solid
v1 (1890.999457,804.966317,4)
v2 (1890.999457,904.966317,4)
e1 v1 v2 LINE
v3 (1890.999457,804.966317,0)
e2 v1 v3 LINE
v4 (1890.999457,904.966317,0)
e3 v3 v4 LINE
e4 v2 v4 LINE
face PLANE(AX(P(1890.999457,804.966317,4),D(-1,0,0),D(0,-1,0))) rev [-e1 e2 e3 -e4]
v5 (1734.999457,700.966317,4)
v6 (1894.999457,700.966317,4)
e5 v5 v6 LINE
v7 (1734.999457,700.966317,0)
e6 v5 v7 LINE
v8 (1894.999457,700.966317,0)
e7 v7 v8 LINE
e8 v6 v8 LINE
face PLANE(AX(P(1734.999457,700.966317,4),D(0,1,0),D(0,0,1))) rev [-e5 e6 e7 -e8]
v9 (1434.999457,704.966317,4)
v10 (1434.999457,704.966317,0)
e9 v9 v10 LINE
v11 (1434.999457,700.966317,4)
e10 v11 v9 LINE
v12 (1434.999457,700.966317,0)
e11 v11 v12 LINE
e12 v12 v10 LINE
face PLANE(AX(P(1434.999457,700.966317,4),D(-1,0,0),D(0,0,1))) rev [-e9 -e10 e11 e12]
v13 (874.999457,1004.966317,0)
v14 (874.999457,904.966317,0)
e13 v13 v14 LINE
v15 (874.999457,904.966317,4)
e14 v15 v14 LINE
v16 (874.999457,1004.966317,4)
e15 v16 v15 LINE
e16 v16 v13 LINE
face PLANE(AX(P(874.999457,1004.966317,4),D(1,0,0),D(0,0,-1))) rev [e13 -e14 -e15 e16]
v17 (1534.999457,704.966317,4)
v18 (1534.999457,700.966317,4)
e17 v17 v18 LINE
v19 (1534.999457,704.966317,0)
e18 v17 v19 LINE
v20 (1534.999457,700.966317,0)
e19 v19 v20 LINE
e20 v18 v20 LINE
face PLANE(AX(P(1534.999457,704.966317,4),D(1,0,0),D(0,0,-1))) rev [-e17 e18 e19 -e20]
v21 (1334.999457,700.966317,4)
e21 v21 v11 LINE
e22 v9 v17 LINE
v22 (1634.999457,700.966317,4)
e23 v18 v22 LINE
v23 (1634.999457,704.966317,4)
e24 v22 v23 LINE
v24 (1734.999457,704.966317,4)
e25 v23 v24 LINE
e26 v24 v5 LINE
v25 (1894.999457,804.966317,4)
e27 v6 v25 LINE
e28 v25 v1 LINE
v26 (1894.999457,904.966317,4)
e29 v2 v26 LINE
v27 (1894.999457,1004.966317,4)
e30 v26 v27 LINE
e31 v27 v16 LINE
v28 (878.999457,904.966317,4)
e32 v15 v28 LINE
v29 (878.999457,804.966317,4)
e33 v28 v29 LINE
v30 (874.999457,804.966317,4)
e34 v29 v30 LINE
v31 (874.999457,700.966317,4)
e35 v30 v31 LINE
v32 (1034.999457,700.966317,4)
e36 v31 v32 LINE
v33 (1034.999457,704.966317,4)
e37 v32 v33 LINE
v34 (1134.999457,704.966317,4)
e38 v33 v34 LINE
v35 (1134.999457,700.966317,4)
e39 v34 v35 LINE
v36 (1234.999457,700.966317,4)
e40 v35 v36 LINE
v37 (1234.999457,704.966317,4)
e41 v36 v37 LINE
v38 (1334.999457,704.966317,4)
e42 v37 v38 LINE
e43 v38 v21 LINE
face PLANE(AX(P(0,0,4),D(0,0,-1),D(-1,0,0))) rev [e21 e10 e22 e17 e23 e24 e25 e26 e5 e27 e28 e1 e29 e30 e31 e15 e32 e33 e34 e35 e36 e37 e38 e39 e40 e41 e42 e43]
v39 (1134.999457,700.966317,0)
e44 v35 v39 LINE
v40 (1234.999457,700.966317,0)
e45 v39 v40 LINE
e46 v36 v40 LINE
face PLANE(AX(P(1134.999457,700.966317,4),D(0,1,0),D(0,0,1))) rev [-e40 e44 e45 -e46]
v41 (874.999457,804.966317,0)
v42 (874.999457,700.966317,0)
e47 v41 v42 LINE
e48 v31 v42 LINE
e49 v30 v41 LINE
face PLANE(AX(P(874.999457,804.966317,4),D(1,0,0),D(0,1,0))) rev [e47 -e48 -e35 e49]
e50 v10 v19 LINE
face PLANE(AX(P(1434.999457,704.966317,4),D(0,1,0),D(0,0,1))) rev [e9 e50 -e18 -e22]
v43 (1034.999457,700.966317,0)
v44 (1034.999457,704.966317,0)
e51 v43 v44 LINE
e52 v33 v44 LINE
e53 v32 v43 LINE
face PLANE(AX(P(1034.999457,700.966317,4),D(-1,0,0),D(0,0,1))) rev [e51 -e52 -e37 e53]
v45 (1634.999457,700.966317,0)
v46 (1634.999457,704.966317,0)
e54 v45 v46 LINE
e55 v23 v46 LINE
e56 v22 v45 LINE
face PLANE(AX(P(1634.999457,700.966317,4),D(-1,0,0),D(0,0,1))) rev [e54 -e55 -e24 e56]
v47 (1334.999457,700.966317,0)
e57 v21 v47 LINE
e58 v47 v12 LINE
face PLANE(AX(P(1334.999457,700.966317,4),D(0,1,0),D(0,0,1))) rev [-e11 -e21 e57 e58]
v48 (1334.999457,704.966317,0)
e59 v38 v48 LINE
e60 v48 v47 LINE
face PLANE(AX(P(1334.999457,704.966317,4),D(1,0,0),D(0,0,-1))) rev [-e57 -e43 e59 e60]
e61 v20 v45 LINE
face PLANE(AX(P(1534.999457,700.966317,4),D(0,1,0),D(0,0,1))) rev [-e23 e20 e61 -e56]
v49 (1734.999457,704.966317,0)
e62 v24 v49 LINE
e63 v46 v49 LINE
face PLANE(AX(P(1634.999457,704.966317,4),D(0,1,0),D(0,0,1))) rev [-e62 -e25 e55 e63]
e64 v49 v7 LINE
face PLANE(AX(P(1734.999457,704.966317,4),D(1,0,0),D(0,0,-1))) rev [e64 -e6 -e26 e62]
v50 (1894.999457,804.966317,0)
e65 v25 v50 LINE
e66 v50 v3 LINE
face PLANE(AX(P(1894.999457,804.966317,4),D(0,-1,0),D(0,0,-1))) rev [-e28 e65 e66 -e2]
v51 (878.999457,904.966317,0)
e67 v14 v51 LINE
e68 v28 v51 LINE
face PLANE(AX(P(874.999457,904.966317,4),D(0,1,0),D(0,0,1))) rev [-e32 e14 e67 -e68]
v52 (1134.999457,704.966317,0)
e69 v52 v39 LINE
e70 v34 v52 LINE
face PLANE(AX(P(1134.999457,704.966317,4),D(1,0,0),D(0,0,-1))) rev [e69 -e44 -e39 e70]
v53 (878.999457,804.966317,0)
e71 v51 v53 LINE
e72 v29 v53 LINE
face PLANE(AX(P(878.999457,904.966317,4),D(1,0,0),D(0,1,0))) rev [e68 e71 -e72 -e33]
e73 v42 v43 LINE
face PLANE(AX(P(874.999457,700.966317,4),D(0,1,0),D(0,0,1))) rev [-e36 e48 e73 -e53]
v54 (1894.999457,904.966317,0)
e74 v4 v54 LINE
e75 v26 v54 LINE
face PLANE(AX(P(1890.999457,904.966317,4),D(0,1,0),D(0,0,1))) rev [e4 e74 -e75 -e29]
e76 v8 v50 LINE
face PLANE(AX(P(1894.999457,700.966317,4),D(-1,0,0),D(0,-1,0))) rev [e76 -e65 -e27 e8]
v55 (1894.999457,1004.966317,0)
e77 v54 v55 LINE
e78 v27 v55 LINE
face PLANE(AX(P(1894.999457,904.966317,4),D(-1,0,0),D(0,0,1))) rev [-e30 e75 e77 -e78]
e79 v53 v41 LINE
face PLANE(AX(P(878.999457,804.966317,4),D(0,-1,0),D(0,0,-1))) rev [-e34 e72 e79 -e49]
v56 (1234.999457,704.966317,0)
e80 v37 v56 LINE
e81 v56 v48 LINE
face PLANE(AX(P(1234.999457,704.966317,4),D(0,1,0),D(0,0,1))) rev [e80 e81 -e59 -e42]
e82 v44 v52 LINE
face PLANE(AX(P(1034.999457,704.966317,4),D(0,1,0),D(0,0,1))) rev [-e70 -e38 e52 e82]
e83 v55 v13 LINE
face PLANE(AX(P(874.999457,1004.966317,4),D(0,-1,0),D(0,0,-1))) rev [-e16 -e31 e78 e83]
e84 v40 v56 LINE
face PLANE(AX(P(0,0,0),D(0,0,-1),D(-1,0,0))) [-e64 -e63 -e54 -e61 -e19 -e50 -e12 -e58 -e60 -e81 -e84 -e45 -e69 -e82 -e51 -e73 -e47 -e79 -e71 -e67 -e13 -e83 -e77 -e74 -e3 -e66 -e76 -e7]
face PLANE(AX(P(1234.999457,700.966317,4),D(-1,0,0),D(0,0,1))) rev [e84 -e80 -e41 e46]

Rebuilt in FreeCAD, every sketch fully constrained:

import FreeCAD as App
import Part
import Sketcher

V = App.Vector
Q = App.Units.Quantity


def add_polygon(sketch, points):
    """Adds a closed chain of lines whose ends are joined by coincident constraints."""
    first, n = sketch.GeometryCount, len(points)
    for a, b in zip(points, points[1:] + points[:1]):
        sketch.addGeometry(Part.LineSegment(App.Vector(*a, 0), App.Vector(*b, 0)), False)
    for i in range(n):
        sketch.addConstraint(Sketcher.Constraint("Coincident", first + i, 2, first + (i + 1) % n, 1))

doc = App.newDocument("Part")
body = doc.addObject("PartDesign::Body", "Body")

# Sketch on XY plane
sketch1 = body.newObject("Sketcher::SketchObject", "Sketch")
sketch1.AttachmentSupport = (doc.getObject("XY_Plane"), [""])
sketch1.MapMode = "FlatFace"
add_polygon(sketch1, [(879, 805), (875, 805), (875, 701), (1035, 701), (1035, 705), (1135, 705), (1135, 701), (1235, 701), (1235, 705), (1335, 705), (1335, 701), (1435, 701), (1435, 705), (1535, 705), (1535, 701), (1635, 701), (1635, 705), (1735, 705), (1735, 701), (1895, 701), (1895, 805), (1891, 805), (1891, 905), (1895, 905), (1895, 1005), (875, 1005), (875, 905), (879, 905)])  # lines 0-27
sketch1.addConstraint([
    Sketcher.Constraint("Horizontal", 0),
    Sketcher.Constraint("Vertical", 1),
    Sketcher.Constraint("Horizontal", 2),
    Sketcher.Constraint("Vertical", 3),
    Sketcher.Constraint("Horizontal", 4),
    Sketcher.Constraint("Vertical", 5),
    Sketcher.Constraint("Horizontal", 6),
    Sketcher.Constraint("Vertical", 7),
    Sketcher.Constraint("Horizontal", 8),
    Sketcher.Constraint("Vertical", 9),
    Sketcher.Constraint("Horizontal", 10),
    Sketcher.Constraint("Vertical", 11),
    Sketcher.Constraint("Horizontal", 12),
    Sketcher.Constraint("Vertical", 13),
    Sketcher.Constraint("Horizontal", 14),
    Sketcher.Constraint("Vertical", 15),
    Sketcher.Constraint("Horizontal", 16),
    Sketcher.Constraint("Vertical", 17),
    Sketcher.Constraint("Horizontal", 18),
    Sketcher.Constraint("Vertical", 19),
    Sketcher.Constraint("Horizontal", 20),
    Sketcher.Constraint("Vertical", 21),
    Sketcher.Constraint("Horizontal", 22),
    Sketcher.Constraint("Vertical", 23),
    Sketcher.Constraint("Horizontal", 24),
    Sketcher.Constraint("Vertical", 25),
    Sketcher.Constraint("Horizontal", 26),
    Sketcher.Constraint("Vertical", 27),
    Sketcher.Constraint("Horizontal", 2, 2, 5, 2),
    Sketcher.Constraint("Horizontal", 4, 2, 7, 2),
    Sketcher.Constraint("Horizontal", 6, 2, 9, 2),
    Sketcher.Constraint("Horizontal", 8, 2, 11, 2),
    Sketcher.Constraint("Horizontal", 10, 2, 13, 2),
    Sketcher.Constraint("Horizontal", 12, 2, 15, 2),
    Sketcher.Constraint("Horizontal", 14, 2, 17, 2),
    Sketcher.Constraint("Horizontal", 0, 2, 19, 2),
    Sketcher.Constraint("Horizontal", 22, 2, 25, 2),
    Sketcher.Constraint("Vertical", 19, 2, 22, 2),
    Sketcher.Constraint("Vertical", 1, 2, 24, 2),
    Sketcher.Constraint("Equal", 4, 6),
    Sketcher.Constraint("Equal", 6, 8),
    Sketcher.Constraint("Equal", 8, 10),
    Sketcher.Constraint("Equal", 10, 12),
    Sketcher.Constraint("Equal", 12, 14),
    Sketcher.Constraint("Equal", 14, 16),
    Sketcher.Constraint("Equal", 2, 18),
    Sketcher.Constraint("Equal", 0, 20),
    Sketcher.Constraint("Equal", 26, 3),
    Sketcher.Constraint("Equal", 16, 21),
    Sketcher.Constraint("Equal", 21, 23),
    Sketcher.Constraint("DistanceX", 0, 2, 0, 1, Q("4 mm")),
    Sketcher.Constraint("DistanceX", 2, 1, 2, 2, Q("160 mm")),
    Sketcher.Constraint("DistanceX", 4, 1, 4, 2, Q("100 mm")),
    Sketcher.Constraint("DistanceY", 1, 2, 1, 1, Q("104 mm")),
    Sketcher.Constraint("DistanceX", -1, 1, 0, 2, Q("874.999457 mm")),
    Sketcher.Constraint("DistanceY", -1, 1, 0, 2, Q("804.966317 mm")),
])
pad1 = body.newObject("PartDesign::Pad", "Pad")
pad1.Profile = sketch1
pad1.Length = 4

doc.recompute()
